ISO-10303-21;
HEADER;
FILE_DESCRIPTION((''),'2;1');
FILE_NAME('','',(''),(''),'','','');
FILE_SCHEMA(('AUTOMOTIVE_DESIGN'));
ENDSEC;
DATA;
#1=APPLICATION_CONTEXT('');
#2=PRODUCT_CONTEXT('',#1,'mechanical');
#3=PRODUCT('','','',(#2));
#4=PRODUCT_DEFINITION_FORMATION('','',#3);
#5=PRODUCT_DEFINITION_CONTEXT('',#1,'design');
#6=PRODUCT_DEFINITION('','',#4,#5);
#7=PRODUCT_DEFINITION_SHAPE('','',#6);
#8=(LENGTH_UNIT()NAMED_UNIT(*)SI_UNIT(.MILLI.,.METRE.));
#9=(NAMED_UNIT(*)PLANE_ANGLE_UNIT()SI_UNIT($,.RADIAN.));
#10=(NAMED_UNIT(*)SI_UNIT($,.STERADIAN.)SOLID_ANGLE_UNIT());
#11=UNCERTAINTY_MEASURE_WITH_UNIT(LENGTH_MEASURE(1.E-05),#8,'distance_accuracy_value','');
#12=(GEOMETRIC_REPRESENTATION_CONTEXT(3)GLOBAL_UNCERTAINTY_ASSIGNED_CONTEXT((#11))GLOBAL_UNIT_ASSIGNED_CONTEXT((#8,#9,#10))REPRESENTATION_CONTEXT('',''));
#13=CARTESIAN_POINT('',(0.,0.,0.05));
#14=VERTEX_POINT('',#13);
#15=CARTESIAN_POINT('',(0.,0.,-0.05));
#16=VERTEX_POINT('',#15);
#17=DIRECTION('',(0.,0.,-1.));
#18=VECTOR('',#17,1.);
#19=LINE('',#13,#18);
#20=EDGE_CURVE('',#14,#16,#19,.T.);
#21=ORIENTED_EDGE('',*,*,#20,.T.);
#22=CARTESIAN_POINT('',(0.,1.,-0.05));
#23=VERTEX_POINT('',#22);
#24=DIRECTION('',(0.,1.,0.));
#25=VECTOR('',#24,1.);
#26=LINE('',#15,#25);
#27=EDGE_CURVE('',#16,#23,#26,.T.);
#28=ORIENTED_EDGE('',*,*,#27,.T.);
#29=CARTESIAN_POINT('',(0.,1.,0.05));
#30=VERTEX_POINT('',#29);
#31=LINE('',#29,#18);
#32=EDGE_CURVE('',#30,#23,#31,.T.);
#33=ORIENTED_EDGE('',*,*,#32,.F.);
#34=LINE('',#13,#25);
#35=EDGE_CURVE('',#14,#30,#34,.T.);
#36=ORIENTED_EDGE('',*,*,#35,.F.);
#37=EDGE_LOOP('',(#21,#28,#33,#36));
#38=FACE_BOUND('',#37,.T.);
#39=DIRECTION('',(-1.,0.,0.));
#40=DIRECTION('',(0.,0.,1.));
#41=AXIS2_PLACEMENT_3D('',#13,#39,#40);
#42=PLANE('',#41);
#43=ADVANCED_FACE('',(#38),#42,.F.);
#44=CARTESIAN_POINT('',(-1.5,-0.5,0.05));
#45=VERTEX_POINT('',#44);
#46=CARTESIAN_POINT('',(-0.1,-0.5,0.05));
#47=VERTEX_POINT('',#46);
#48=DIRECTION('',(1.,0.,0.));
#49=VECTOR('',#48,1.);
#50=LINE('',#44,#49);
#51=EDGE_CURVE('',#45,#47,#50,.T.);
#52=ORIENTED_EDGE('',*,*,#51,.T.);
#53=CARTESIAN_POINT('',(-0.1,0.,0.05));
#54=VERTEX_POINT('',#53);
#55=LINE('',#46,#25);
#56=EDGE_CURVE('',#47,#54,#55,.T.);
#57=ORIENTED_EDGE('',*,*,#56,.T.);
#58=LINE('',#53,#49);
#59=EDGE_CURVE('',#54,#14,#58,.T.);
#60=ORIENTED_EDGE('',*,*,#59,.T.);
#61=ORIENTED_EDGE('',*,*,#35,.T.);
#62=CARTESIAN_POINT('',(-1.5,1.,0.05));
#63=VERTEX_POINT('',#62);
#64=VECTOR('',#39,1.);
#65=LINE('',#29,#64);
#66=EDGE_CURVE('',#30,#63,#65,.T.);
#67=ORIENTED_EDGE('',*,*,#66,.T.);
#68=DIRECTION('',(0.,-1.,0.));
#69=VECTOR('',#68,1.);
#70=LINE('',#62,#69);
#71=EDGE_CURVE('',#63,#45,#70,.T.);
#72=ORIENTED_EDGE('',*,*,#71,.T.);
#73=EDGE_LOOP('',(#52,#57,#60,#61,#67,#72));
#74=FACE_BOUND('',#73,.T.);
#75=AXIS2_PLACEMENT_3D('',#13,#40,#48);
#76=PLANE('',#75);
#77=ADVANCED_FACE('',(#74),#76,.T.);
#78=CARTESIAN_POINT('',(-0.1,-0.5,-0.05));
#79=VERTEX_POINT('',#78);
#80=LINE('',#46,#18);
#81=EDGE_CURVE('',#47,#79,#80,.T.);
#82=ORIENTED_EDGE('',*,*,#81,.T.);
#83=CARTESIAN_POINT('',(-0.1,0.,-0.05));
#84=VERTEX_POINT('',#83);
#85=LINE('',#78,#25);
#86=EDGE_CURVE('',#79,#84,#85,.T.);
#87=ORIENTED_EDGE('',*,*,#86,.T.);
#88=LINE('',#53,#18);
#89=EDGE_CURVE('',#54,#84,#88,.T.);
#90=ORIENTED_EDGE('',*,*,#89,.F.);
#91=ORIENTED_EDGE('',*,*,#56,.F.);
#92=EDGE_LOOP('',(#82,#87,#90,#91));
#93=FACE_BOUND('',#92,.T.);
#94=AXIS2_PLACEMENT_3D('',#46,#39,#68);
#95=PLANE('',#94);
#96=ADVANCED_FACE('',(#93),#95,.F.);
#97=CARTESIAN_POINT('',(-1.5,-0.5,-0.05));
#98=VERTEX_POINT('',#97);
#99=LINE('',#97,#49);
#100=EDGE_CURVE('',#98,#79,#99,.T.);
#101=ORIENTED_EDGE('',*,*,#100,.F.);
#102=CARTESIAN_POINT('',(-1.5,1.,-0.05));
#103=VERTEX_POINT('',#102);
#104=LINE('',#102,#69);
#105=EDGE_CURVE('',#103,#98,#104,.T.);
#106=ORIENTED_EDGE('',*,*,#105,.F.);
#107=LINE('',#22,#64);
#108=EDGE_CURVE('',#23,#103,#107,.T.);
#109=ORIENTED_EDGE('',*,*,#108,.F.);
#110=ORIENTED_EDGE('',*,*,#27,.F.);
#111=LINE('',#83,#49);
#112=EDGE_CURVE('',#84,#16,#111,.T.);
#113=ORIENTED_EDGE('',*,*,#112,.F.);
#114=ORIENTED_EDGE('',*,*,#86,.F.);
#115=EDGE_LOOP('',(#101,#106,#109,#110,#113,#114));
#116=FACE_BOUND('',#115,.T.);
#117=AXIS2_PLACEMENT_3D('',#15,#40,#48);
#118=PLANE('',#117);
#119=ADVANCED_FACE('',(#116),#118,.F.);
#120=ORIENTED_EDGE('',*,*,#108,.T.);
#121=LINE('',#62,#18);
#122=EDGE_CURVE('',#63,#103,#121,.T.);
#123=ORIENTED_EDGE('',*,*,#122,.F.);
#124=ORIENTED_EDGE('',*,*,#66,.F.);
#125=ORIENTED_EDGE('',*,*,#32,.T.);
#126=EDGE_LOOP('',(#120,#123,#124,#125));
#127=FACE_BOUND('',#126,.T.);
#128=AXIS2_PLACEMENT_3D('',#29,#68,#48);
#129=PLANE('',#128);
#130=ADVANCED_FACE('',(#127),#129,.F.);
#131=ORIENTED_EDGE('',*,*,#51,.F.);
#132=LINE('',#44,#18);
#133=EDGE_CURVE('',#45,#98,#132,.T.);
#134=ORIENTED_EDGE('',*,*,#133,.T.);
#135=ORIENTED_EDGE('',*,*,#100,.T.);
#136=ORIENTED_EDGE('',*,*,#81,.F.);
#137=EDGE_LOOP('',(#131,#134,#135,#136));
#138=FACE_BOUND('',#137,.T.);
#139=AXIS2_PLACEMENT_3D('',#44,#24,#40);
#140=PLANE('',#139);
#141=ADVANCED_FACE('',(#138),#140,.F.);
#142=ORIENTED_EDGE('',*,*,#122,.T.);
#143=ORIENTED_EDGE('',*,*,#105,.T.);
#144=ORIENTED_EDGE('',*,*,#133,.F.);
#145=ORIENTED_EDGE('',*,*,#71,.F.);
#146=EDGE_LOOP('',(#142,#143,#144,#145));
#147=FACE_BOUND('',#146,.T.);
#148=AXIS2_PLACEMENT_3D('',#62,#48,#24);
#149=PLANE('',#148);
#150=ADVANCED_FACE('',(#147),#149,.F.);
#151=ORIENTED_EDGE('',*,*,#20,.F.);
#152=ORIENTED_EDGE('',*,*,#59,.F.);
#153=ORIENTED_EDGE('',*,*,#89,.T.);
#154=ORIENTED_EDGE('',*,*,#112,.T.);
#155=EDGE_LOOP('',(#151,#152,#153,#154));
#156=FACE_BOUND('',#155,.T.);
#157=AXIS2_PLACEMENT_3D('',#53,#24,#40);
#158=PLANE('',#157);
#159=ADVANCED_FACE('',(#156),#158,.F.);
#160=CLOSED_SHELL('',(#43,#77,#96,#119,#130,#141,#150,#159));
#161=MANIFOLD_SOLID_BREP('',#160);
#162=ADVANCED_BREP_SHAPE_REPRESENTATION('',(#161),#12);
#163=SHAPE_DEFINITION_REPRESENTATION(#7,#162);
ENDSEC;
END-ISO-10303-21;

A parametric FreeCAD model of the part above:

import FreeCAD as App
import Part
import Sketcher
from FreeCAD import Vector


def add_polygon(sketch, points):
    """Adds a closed chain of lines whose ends are joined by coincident constraints."""
    first, n = sketch.GeometryCount, len(points)
    for a, b in zip(points, points[1:] + points[:1]):
        sketch.addGeometry(Part.LineSegment(App.Vector(*a, 0), App.Vector(*b, 0)), False)
    for i in range(n):
        sketch.addConstraint(Sketcher.Constraint("Coincident", first + i, 2, first + (i + 1) % n, 1))

doc = App.newDocument("Part")
params = doc.addObject("Spreadsheet::Sheet", "Params")
for row, (alias, value) in enumerate([
    ("sketch1_height", "1 mm"),
    ("sketch1_width", "1.5 mm"),
    ("sketch1_width2", "1.4 mm"),
    ("pad1_length", "0.1 mm"),
], start=1):
    params.set(f"A{row}", alias)
    params.set(f"B{row}", "=" + value)
    params.setAlias(f"B{row}", alias)

body = doc.addObject("PartDesign::Body", "Body")

sketch1 = doc.addObject("Sketcher::SketchObject", "Sketch")
body.addObject(sketch1)
sketch1.AttachmentSupport = (doc.XY_Plane, [""])
sketch1.MapMode = "FlatFace"
add_polygon(sketch1, [(0, 0), (0, 1), (-1.5, 1), (-1.5, -0.5), (-0.1, -0.5), (-0.1, 0)])
sketch1.addConstraint([
    Sketcher.Constraint("Vertical", 0),
    Sketcher.Constraint("Horizontal", 1),
    Sketcher.Constraint("Vertical", 2),
    Sketcher.Constraint("Horizontal", 3),
    Sketcher.Constraint("Vertical", 4),
    Sketcher.Constraint("Horizontal", 5),
    Sketcher.Constraint("Coincident", 5, 2, -1, 1),
    Sketcher.Constraint("Equal", 1, 2),
    Sketcher.Constraint("DistanceY", 0, 1, 0, 2, 1.0),
    Sketcher.Constraint("DistanceX", 1, 2, 1, 1, 1.5),
    Sketcher.Constraint("DistanceX", 3, 1, 3, 2, 1.4),
])
sketch1.setExpression("Constraints[14]", "Params.sketch1_height")
sketch1.setExpression("Constraints[15]", "Params.sketch1_width")
sketch1.setExpression("Constraints[16]", "Params.sketch1_width2")
pad1 = doc.addObject("PartDesign::Pad", "Pad")
body.addObject(pad1)
pad1.Profile = sketch1
pad1.setExpression("Length", "Params.pad1_length")
pad1.Midplane = True

doc.recompute()
